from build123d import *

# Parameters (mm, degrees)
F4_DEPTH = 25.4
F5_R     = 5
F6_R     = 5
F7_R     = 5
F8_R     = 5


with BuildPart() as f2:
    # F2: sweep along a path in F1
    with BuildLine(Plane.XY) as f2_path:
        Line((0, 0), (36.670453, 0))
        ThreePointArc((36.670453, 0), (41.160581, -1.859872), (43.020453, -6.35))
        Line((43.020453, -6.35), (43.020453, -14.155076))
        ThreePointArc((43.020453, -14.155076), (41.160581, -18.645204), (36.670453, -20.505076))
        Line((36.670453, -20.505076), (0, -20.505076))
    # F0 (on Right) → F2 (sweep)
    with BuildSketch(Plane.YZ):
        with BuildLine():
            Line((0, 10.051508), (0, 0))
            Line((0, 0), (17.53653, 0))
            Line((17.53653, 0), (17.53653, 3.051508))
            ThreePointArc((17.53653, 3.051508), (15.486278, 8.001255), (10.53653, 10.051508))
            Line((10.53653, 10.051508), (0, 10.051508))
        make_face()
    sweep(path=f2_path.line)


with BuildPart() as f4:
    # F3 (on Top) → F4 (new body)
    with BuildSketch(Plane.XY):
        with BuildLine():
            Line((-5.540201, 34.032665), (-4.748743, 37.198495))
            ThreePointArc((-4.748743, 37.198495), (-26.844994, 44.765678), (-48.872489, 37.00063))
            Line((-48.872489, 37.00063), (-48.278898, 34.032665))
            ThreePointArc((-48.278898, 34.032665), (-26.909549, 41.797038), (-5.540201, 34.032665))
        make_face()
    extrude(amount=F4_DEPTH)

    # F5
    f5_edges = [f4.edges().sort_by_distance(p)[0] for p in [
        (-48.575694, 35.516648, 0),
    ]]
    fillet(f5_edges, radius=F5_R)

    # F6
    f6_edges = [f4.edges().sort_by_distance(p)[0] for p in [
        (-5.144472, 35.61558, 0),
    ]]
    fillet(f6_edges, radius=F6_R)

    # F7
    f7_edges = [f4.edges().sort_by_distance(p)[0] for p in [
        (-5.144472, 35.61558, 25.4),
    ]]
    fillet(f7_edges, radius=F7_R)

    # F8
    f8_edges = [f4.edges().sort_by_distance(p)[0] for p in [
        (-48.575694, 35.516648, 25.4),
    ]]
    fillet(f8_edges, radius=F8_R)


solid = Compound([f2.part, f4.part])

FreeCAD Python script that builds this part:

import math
import FreeCAD as App
import Part
import Sketcher

V = App.Vector
Q = App.Units.Quantity


def edges_at(feature, points):
    """Names of the edges that pass closest to the given points."""
    edges = feature.Shape.Edges
    near = lambda p: min(range(len(edges)), key=lambda i: edges[i].distToShape(Part.Vertex(*p))[0])
    return sorted({f"Edge{near(p) + 1}" for p in points})

doc = App.newDocument("Part")
body = doc.addObject("PartDesign::Body", "Body")

# Sketch on YZ plane
sketch1 = doc.addObject("Sketcher::SketchObject", "Sketch")
body.addObject(sketch1)
sketch1.AttachmentSupport = (doc.YZ_Plane, [""])
sketch1.MapMode = "FlatFace"
sketch1.addGeometry([
    Part.LineSegment(V(0, 10.1, 0), V(0, 0, 0)),  # 0
    Part.LineSegment(V(0, 0, 0), V(17.5, 0, 0)),  # 1
    Part.LineSegment(V(17.5, 0, 0), V(17.5, 3.1, 0)),  # 2
    Part.ArcOfCircle(Part.Circle(V(10.5, 3.1, 0), V(0, 0, 1), 7), math.radians(0), math.radians(90)),  # 3
    Part.LineSegment(V(10.5, 10.1, 0), V(0, 10.1, 0)),  # 4
], False)
sketch1.addConstraint([
    Sketcher.Constraint("Coincident", 0, 2, 1, 1),
    Sketcher.Constraint("Coincident", 1, 2, 2, 1),
    Sketcher.Constraint("Tangent", 2, 2, 3, 1),
    Sketcher.Constraint("Tangent", 3, 2, 4, 1),
    Sketcher.Constraint("Coincident", 4, 2, 0, 1),
    Sketcher.Constraint("Vertical", 0),
    Sketcher.Constraint("Horizontal", 1),
    Sketcher.Constraint("Vertical", 2),
    Sketcher.Constraint("Horizontal", 4),
    Sketcher.Constraint("Coincident", 0, 2, -1, 1),
    Sketcher.Constraint("Radius", 3, Q("7 mm")),
    Sketcher.Constraint("DistanceX", 1, 1, 1, 2, Q("17.53653 mm")),
    Sketcher.Constraint("DistanceY", 2, 1, 2, 2, Q("3.051508 mm")),
])

# Sketch on XY plane
sketch2 = doc.addObject("Sketcher::SketchObject", "Sketch001")
body.addObject(sketch2)
sketch2.AttachmentSupport = (doc.XY_Plane, [""])
sketch2.MapMode = "FlatFace"
sketch2.addGeometry([
    Part.LineSegment(V(0, 0, 0), V(37, 0, 0)),  # 0
    Part.ArcOfCircle(Part.Circle(V(37, -6, 0), V(0, 0, 1), 6), math.radians(0), math.radians(90)),  # 1
    Part.LineSegment(V(43, -6, 0), V(43, -14, 0)),  # 2
    Part.ArcOfCircle(Part.Circle(V(37, -14, 0), V(0, 0, 1), 6), math.radians(-90), math.radians(0)),  # 3
    Part.LineSegment(V(37, -21, 0), V(0, -21, 0)),  # 4
], False)
sketch2.addConstraint([
    Sketcher.Constraint("Tangent", 0, 2, 1, 2),
    Sketcher.Constraint("Tangent", 1, 1, 2, 1),
    Sketcher.Constraint("Tangent", 2, 2, 3, 2),
    Sketcher.Constraint("Tangent", 3, 1, 4, 1),
    Sketcher.Constraint("Horizontal", 0),
    Sketcher.Constraint("Vertical", 2),
    Sketcher.Constraint("Horizontal", 4),
    Sketcher.Constraint("Coincident", 0, 1, -1, 1),
    Sketcher.Constraint("Equal", 1, 3),
    Sketcher.Constraint("PointOnObject", 4, 2, -2),
    Sketcher.Constraint("Radius", 1, Q("6.35 mm")),
    Sketcher.Constraint("DistanceX", 0, 1, 0, 2, Q("36.670453 mm")),
    Sketcher.Constraint("DistanceY", 2, 2, 2, 1, Q("7.805076 mm")),
])
doc.recompute()

additivepipe = doc.addObject("PartDesign::AdditivePipe", "AdditivePipe")
body.addObject(additivepipe)
additivepipe.Profile = sketch1
additivepipe.Spine = (sketch2, ["Edge1", "Edge2", "Edge3", "Edge4", "Edge5"])
body2 = doc.addObject("PartDesign::Body", "Body001")

# Sketch on XY plane
sketch3 = doc.addObject("Sketcher::SketchObject", "Sketch002")
body2.addObject(sketch3)
sketch3.AttachmentSupport = (doc.getObject("XY_Plane001"), [""])
sketch3.MapMode = "FlatFace"
sketch3.addGeometry([
    Part.LineSegment(V(-5.5, 34, 0), V(-4.7, 37.2, 0)),
    Part.ArcOfCircle(Part.Circle(V(-26.7, 9.2, 0), V(0, 0, 1), 35.6), math.radians(52), math.radians(129)),
    Part.LineSegment(V(-48.9, 37, 0), V(-48.3, 34, 0)),
    Part.ArcOfCircle(Part.Circle(V(-26.9, 8.5, 0), V(0, 0, 1), 33.3), math.radians(50), math.radians(130)),
], False)
sketch3.addConstraint([
    Sketcher.Constraint("Coincident", 0, 2, 1, 1),
    Sketcher.Constraint("Coincident", 1, 2, 2, 1),
    Sketcher.Constraint("Coincident", 2, 2, 3, 2),
    Sketcher.Constraint("Coincident", 3, 1, 0, 1),
    Sketcher.Constraint("Horizontal", 2, 2, 3, 1),
    Sketcher.Constraint("Radius", 3, Q("33.288879 mm")),
    Sketcher.Constraint("Radius", 1, Q("35.578713 mm")),
    Sketcher.Constraint("DistanceX", 3, 1, -1, 1, Q("5.540201 mm")),
    Sketcher.Constraint("DistanceX", 3, 3, 1, 3, Q("0.224101 mm")),
    Sketcher.Constraint("Distance", 2, Q("3.026742 mm")),
    Sketcher.Constraint("DistanceX", 1, 3, -1, 1, Q("26.685449 mm")),
    Sketcher.Constraint("DistanceY", -1, 1, 3, 3, Q("8.508159 mm")),
    Sketcher.Constraint("DistanceX", 1, 2, -1, 1, Q("48.872489 mm")),
    Sketcher.Constraint("DistanceY", 2, 2, 0, 2, Q("3.16583 mm")),
])
pad1 = doc.addObject("PartDesign::Pad", "Pad")
body2.addObject(pad1)
pad1.Profile = sketch3
pad1.Length = 25.4
doc.recompute()

fillet = doc.addObject("PartDesign::Fillet", "Fillet")
body2.addObject(fillet)
fillet.Base = (pad1, edges_at(pad1, [(-48.576, 35.517, 0)]))
fillet.Radius = 5
doc.recompute()

fillet2 = doc.addObject("PartDesign::Fillet", "Fillet001")
body2.addObject(fillet2)
fillet2.Base = (fillet, edges_at(fillet, [(-5.144, 35.616, 0)]))
fillet2.Radius = 5
doc.recompute()

fillet3 = doc.addObject("PartDesign::Fillet", "Fillet002")
body2.addObject(fillet3)
fillet3.Base = (fillet2, edges_at(fillet2, [(-5.144, 35.616, 25.4)]))
fillet3.Radius = 5
doc.recompute()

fillet4 = doc.addObject("PartDesign::Fillet", "Fillet003")
body2.addObject(fillet4)
fillet4.Base = (fillet3, edges_at(fillet3, [(-48.576, 35.517, 25.4)]))
fillet4.Radius = 5

doc.recompute()
